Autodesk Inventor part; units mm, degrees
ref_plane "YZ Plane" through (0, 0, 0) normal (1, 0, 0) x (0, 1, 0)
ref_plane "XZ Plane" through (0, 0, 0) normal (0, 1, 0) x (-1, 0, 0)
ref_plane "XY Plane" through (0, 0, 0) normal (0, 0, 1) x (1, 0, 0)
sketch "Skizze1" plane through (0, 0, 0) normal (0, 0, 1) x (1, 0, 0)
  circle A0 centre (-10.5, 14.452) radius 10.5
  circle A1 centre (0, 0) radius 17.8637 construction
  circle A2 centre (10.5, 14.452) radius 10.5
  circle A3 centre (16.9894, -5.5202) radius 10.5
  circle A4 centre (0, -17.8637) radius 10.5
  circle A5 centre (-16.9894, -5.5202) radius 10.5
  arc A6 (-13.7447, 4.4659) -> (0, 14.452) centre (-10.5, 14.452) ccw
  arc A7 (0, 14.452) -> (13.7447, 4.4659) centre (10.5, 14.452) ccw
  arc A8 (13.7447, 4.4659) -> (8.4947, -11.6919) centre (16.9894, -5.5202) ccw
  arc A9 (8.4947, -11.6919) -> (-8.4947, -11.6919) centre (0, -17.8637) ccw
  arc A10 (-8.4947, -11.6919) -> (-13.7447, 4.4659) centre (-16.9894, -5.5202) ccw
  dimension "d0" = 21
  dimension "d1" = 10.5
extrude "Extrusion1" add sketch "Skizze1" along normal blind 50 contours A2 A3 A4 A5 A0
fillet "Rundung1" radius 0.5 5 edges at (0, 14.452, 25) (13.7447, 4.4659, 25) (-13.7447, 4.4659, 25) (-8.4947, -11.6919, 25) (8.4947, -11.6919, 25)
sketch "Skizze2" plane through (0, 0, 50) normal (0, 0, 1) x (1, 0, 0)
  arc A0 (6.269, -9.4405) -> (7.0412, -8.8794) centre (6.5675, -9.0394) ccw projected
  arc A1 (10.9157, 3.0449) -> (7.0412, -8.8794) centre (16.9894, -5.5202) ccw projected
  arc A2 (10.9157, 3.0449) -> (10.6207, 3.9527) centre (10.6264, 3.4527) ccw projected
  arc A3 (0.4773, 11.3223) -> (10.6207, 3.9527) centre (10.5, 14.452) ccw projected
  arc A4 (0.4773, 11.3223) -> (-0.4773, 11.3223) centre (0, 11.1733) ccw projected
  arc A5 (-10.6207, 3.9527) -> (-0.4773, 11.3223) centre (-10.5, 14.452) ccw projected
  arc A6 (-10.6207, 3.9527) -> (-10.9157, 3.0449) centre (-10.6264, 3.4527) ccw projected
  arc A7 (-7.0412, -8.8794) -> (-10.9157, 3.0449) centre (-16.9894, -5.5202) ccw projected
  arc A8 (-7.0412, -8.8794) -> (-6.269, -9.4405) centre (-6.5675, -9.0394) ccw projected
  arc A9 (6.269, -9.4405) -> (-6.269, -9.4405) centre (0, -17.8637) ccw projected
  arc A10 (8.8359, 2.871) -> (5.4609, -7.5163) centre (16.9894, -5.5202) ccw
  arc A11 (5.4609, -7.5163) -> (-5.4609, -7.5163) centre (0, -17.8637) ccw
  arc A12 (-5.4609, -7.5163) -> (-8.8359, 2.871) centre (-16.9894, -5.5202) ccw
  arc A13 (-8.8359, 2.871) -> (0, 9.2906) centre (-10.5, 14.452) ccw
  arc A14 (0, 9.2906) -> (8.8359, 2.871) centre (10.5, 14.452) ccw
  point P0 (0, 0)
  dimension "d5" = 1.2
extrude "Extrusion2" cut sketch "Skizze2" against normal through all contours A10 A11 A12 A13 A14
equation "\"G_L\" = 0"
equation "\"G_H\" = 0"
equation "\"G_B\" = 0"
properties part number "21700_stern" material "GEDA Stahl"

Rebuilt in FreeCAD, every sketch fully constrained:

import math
import FreeCAD as App
import Part
import Sketcher

V = App.Vector
Q = App.Units.Quantity


def edges_at(feature, points):
    """Names of the edges that pass closest to the given points."""
    edges = feature.Shape.Edges
    near = lambda p: min(range(len(edges)), key=lambda i: edges[i].distToShape(Part.Vertex(*p))[0])
    return sorted({f"Edge{near(p) + 1}" for p in points})

doc = App.newDocument("Part")
body = doc.addObject("PartDesign::Body", "Body")

# Sketch on XY plane
sketch1 = body.newObject("Sketcher::SketchObject", "Sketch")
sketch1.AttachmentSupport = (doc.getObject("XY_Plane"), [""])
sketch1.MapMode = "FlatFace"
sketch1.addGeometry(Part.ArcOfCircle(Part.Circle(V(10, 14, 0), V(0, 0, 1), 10), math.radians(180), math.radians(288)), False)
sketch1.addGeometry(Part.ArcOfCircle(Part.Circle(V(-10, 14, 0), V(0, 0, 1), 10), math.radians(-108), math.radians(0)), False)
sketch1.addGeometry(Part.ArcOfCircle(Part.Circle(V(-17, -6, 0), V(0, 0, 1), 10), math.radians(-36), math.radians(72)), False)
sketch1.addGeometry(Part.ArcOfCircle(Part.Circle(V(0, -18, 0), V(0, 0, 1), 10), math.radians(36), math.radians(144)), False)
sketch1.addGeometry(Part.ArcOfCircle(Part.Circle(V(17, -6, 0), V(0, 0, 1), 10), math.radians(108), math.radians(216)), False)
sketch1.addConstraint(Sketcher.Constraint("Tangent", 0, 1, 1, 2))
sketch1.addConstraint(Sketcher.Constraint("Tangent", 1, 1, 2, 2))
sketch1.addConstraint(Sketcher.Constraint("Tangent", 2, 1, 3, 2))
sketch1.addConstraint(Sketcher.Constraint("Tangent", 3, 1, 4, 2))
sketch1.addConstraint(Sketcher.Constraint("Tangent", 4, 1, 0, 2))
sketch1.addConstraint(Sketcher.Constraint("Equal", 0, 1))
sketch1.addConstraint(Sketcher.Constraint("Equal", 1, 2))
sketch1.addConstraint(Sketcher.Constraint("Equal", 2, 3))
sketch1.addConstraint(Sketcher.Constraint("Equal", 3, 4))
sketch1.addConstraint(Sketcher.Constraint("Symmetric", 0, 3, 1, 3, -2))
sketch1.addConstraint(Sketcher.Constraint("PointOnObject", 3, 3, -2))
sketch1.addConstraint(Sketcher.Constraint("Radius", 0, Q("10.5 mm")))
sketch1.addConstraint(Sketcher.Constraint("DistanceY", -1, 1, 0, 3, Q("14.452 mm")))
sketch1.addConstraint(Sketcher.Constraint("DistanceY", -1, 1, 1, 1, Q("4.466 mm")))
pad1 = body.newObject("PartDesign::Pad", "Pad")
pad1.Profile = sketch1
pad1.Length = 50
doc.recompute()

fillet = body.newObject("PartDesign::Fillet", "Fillet")
fillet.Base = (pad1, edges_at(pad1, [
    (0, 14.452, 25),
    (13.745, 4.466, 25),
    (-13.745, 4.466, 25),
    (-8.495, -11.692, 25),
    (8.495, -11.692, 25),
]))
fillet.Radius = 0.5

# Sketch on XY plane
sketch2 = body.newObject("Sketcher::SketchObject", "Sketch001")
sketch2.AttachmentSupport = (doc.getObject("XY_Plane"), [""])
sketch2.MapMode = "FlatFace"
sketch2.AttachmentOffset = App.Placement(V(0, 0, 50), App.Rotation())
sketch2.addGeometry(Part.ArcOfCircle(Part.Circle(V(17, -6, 0), V(0, 0, 1), 12), math.radians(134), math.radians(190)), False)
sketch2.addGeometry(Part.ArcOfCircle(Part.Circle(V(10, 14, 0), V(0, 0, 1), 12), math.radians(-154), math.radians(-98)), False)
sketch2.addGeometry(Part.ArcOfCircle(Part.Circle(V(-10, 14, 0), V(0, 0, 1), 12), math.radians(-82), math.radians(-26)), False)
sketch2.addGeometry(Part.ArcOfCircle(Part.Circle(V(-17, -6, 0), V(0, 0, 1), 12), math.radians(-10), math.radians(46)), False)
sketch2.addGeometry(Part.ArcOfCircle(Part.Circle(V(0, -18, 0), V(0, 0, 1), 12), math.radians(62), math.radians(118)), False)
sketch2.addConstraint(Sketcher.Constraint("Coincident", 0, 1, 1, 2))
sketch2.addConstraint(Sketcher.Constraint("Coincident", 1, 1, 2, 2))
sketch2.addConstraint(Sketcher.Constraint("Coincident", 2, 1, 3, 2))
sketch2.addConstraint(Sketcher.Constraint("Coincident", 3, 1, 4, 2))
sketch2.addConstraint(Sketcher.Constraint("Coincident", 4, 1, 0, 2))
sketch2.addConstraint(Sketcher.Constraint("Equal", 0, 1))
sketch2.addConstraint(Sketcher.Constraint("Equal", 1, 2))
sketch2.addConstraint(Sketcher.Constraint("Equal", 2, 3))
sketch2.addConstraint(Sketcher.Constraint("Equal", 3, 4))
sketch2.addConstraint(Sketcher.Constraint("Symmetric", 1, 3, 2, 3, -2))
sketch2.addConstraint(Sketcher.Constraint("Symmetric", 0, 3, 3, 3, -2))
sketch2.addConstraint(Sketcher.Constraint("PointOnObject", 4, 3, -2))
sketch2.addConstraint(Sketcher.Constraint("Radius", 0, Q("11.7 mm")))
sketch2.addConstraint(Sketcher.Constraint("DistanceX", 2, 3, 1, 3, Q("21 mm")))
sketch2.addConstraint(Sketcher.Constraint("DistanceY", -1, 1, 1, 3, Q("14.452 mm")))
sketch2.addConstraint(Sketcher.Constraint("DistanceX", -1, 1, 0, 1, Q("8.836 mm")))
sketch2.addConstraint(Sketcher.Constraint("DistanceX", 3, 1, -1, 1, Q("5.461 mm")))
sketch2.addConstraint(Sketcher.Constraint("DistanceY", 3, 1, 3, 3, Q("1.996 mm")))
pocket1 = body.newObject("PartDesign::Pocket", "Pocket")
pocket1.Profile = sketch2
pocket1.Type = "ThroughAll"

doc.recompute()
